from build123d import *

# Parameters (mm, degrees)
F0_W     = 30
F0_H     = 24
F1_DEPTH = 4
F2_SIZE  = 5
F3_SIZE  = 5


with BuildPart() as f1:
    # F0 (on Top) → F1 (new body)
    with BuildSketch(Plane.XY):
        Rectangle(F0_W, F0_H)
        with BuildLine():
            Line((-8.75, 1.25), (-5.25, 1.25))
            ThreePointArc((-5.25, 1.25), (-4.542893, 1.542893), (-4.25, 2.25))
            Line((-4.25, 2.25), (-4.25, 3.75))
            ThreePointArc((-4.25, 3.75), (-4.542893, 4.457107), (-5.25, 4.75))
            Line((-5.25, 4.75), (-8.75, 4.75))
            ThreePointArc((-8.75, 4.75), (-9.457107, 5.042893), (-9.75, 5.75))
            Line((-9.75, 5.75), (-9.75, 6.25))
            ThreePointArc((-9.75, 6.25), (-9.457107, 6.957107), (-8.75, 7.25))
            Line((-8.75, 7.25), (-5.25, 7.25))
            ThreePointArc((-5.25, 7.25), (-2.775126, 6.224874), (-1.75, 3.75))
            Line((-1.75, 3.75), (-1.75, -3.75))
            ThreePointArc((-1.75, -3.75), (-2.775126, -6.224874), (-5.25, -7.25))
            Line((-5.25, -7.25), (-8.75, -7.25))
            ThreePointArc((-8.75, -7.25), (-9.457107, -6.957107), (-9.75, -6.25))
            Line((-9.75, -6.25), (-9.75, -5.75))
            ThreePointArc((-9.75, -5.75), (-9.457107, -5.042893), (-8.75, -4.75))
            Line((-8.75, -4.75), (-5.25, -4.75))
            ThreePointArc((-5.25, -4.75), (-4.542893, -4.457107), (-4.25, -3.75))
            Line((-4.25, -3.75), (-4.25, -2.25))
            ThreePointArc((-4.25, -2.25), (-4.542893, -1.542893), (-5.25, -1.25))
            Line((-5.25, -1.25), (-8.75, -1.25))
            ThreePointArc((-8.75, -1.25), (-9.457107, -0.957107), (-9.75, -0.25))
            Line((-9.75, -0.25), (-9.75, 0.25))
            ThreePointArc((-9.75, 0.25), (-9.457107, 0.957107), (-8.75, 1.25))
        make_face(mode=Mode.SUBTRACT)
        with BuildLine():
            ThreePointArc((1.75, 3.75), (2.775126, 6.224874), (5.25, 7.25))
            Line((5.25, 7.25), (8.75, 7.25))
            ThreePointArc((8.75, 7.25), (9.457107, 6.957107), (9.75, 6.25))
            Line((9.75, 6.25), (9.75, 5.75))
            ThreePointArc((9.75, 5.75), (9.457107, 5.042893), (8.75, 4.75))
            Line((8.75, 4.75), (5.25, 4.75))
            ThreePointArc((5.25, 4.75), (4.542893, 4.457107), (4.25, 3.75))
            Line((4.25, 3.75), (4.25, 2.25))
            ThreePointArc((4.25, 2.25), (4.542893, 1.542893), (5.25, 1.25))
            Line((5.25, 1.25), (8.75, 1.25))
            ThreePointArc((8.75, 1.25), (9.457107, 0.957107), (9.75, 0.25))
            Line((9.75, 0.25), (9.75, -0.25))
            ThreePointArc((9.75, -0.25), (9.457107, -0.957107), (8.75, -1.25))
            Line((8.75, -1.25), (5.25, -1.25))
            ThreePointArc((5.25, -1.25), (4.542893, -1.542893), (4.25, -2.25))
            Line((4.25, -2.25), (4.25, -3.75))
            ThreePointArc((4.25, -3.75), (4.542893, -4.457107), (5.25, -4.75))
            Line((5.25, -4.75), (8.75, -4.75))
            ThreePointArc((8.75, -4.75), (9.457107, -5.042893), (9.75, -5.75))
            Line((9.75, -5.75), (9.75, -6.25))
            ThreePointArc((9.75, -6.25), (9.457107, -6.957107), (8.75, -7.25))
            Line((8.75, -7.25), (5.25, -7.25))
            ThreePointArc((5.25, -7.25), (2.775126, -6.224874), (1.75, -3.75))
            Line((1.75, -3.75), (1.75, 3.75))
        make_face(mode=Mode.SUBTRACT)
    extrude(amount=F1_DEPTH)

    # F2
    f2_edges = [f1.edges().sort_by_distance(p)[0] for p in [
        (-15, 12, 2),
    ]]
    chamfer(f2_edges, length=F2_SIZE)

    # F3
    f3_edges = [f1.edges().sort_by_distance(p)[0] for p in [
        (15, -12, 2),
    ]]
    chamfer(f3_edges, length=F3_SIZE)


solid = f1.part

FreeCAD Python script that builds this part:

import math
import FreeCAD as App
import Part
import Sketcher

V = App.Vector


def edges_at(feature, points):
    """Names of the edges that pass closest to the given points."""
    edges = feature.Shape.Edges
    near = lambda p: min(range(len(edges)), key=lambda i: edges[i].distToShape(Part.Vertex(*p))[0])
    return sorted({f"Edge{near(p) + 1}" for p in points})

doc = App.newDocument("Part")
params = doc.addObject("Spreadsheet::Sheet", "Params")
for row, (alias, value) in enumerate([
    ("sketch1_radius", "0.999999 mm"),
    ("sketch1_radius2", "3.499999 mm"),
    ("sketch1_width", "30 mm"),
    ("sketch1_height", "24 mm"),
    ("sketch1_width2", "3.5 mm"),
    ("pad1_length", "4 mm"),
    ("chamfer_size", "5 mm"),
    ("chamfer2_size", "5 mm"),
], start=1):
    params.set(f"A{row}", alias)
    params.set(f"B{row}", "=" + value)
    params.setAlias(f"B{row}", alias)

body = doc.addObject("PartDesign::Body", "Body")

sketch1 = body.newObject("Sketcher::SketchObject", "Sketch")
sketch1.AttachmentSupport = (doc.getObject("XY_Plane"), [""])
sketch1.MapMode = "FlatFace"
sketch1.addGeometry([
    Part.LineSegment(V(-15, 12, 0), V(-15, -12, 0)),
    Part.LineSegment(V(-15, -12, 0), V(15, -12, 0)),
    Part.LineSegment(V(15, -12, 0), V(15, 12, 0)),
    Part.LineSegment(V(15, 12, 0), V(-15, 12, 0)),
    Part.ArcOfCircle(Part.Circle(V(-8.750001, 0.250001, 0), V(0, 0, 1), 0.999999), math.radians(89.999957), math.radians(180.000043)),
    Part.LineSegment(V(-8.75, 1.25, 0), V(-5.25, 1.25, 0)),
    Part.ArcOfCircle(Part.Circle(V(-5.249999, 2.249999, 0), V(0, 0, 1), 0.999999), math.radians(-90.000043), math.radians(0.000043)),
    Part.LineSegment(V(-4.25, 2.25, 0), V(-4.25, 3.75, 0)),
    Part.ArcOfCircle(Part.Circle(V(-5.249999, 3.750001, 0), V(0, 0, 1), 0.999999), math.radians(-0.000043), math.radians(90.000043)),
    Part.LineSegment(V(-5.25, 4.75, 0), V(-8.75, 4.75, 0)),
    Part.ArcOfCircle(Part.Circle(V(-8.750001, 5.749999, 0), V(0, 0, 1), 0.999999), math.radians(179.999957), math.radians(270.000043)),
    Part.LineSegment(V(-9.75, 5.75, 0), V(-9.75, 6.25, 0)),
    Part.ArcOfCircle(Part.Circle(V(-8.750001, 6.250001, 0), V(0, 0, 1), 0.999999), math.radians(89.999957), math.radians(180.000043)),
    Part.LineSegment(V(-8.75, 7.25, 0), V(-5.25, 7.25, 0)),
    Part.ArcOfCircle(Part.Circle(V(-5.249999, 3.750001, 0), V(0, 0, 1), 3.499999), math.radians(-0.000015), math.radians(90.000015)),
    Part.LineSegment(V(-1.75, 3.75, 0), V(-1.75, -3.75, 0)),
    Part.ArcOfCircle(Part.Circle(V(-5.249999, -3.750001, 0), V(0, 0, 1), 3.499999), math.radians(-90.000015), math.radians(0.000015)),
    Part.LineSegment(V(-5.25, -7.25, 0), V(-8.75, -7.25, 0)),
    Part.ArcOfCircle(Part.Circle(V(-8.750001, -6.250001, 0), V(0, 0, 1), 0.999999), math.radians(179.999957), math.radians(270.000043)),
    Part.LineSegment(V(-9.75, -6.25, 0), V(-9.75, -5.75, 0)),
    Part.ArcOfCircle(Part.Circle(V(-8.750001, -5.749999, 0), V(0, 0, 1), 0.999999), math.radians(89.999957), math.radians(180.000043)),
    Part.LineSegment(V(-8.75, -4.75, 0), V(-5.25, -4.75, 0)),
    Part.ArcOfCircle(Part.Circle(V(-5.249999, -3.750001, 0), V(0, 0, 1), 0.999999), math.radians(-90.000043), math.radians(0.000043)),
    Part.LineSegment(V(-4.25, -3.75, 0), V(-4.25, -2.25, 0)),
    Part.ArcOfCircle(Part.Circle(V(-5.249999, -2.249999, 0), V(0, 0, 1), 0.999999), math.radians(-0.000043), math.radians(90.000043)),
    Part.LineSegment(V(-5.25, -1.25, 0), V(-8.75, -1.25, 0)),
    Part.ArcOfCircle(Part.Circle(V(-8.750001, -0.250001, 0), V(0, 0, 1), 0.999999), math.radians(179.999957), math.radians(270.000043)),
    Part.LineSegment(V(-9.75, -0.25, 0), V(-9.75, 0.25, 0)),
    Part.LineSegment(V(1.75, -3.75, 0), V(1.75, 3.75, 0)),
    Part.ArcOfCircle(Part.Circle(V(5.249999, 3.750001, 0), V(0, 0, 1), 3.499999), math.radians(89.999985), math.radians(180.000015)),
    Part.LineSegment(V(5.25, 7.25, 0), V(8.75, 7.25, 0)),
    Part.ArcOfCircle(Part.Circle(V(8.750001, 6.250001, 0), V(0, 0, 1), 0.999999), math.radians(-0.000043), math.radians(90.000043)),
    Part.LineSegment(V(9.75, 6.25, 0), V(9.75, 5.75, 0)),
    Part.ArcOfCircle(Part.Circle(V(8.750001, 5.749999, 0), V(0, 0, 1), 0.999999), math.radians(-90.000043), math.radians(0.000043)),
    Part.LineSegment(V(8.75, 4.75, 0), V(5.25, 4.75, 0)),
    Part.ArcOfCircle(Part.Circle(V(5.249999, 3.750001, 0), V(0, 0, 1), 0.999999), math.radians(89.999957), math.radians(180.000043)),
    Part.LineSegment(V(4.25, 3.75, 0), V(4.25, 2.25, 0)),
    Part.ArcOfCircle(Part.Circle(V(5.249999, 2.249999, 0), V(0, 0, 1), 0.999999), math.radians(179.999957), math.radians(270.000043)),
    Part.LineSegment(V(5.25, 1.25, 0), V(8.75, 1.25, 0)),
    Part.ArcOfCircle(Part.Circle(V(8.750001, 0.250001, 0), V(0, 0, 1), 0.999999), math.radians(-0.000043), math.radians(90.000043)),
    Part.LineSegment(V(9.75, 0.25, 0), V(9.75, -0.25, 0)),
    Part.ArcOfCircle(Part.Circle(V(8.750001, -0.250001, 0), V(0, 0, 1), 0.999999), math.radians(-90.000043), math.radians(0.000043)),
    Part.LineSegment(V(8.75, -1.25, 0), V(5.25, -1.25, 0)),
    Part.ArcOfCircle(Part.Circle(V(5.249999, -2.249999, 0), V(0, 0, 1), 0.999999), math.radians(89.999957), math.radians(180.000043)),
    Part.LineSegment(V(4.25, -2.25, 0), V(4.25, -3.75, 0)),
    Part.ArcOfCircle(Part.Circle(V(5.249999, -3.750001, 0), V(0, 0, 1), 0.999999), math.radians(179.999957), math.radians(270.000043)),
    Part.LineSegment(V(5.25, -4.75, 0), V(8.75, -4.75, 0)),
    Part.ArcOfCircle(Part.Circle(V(8.750001, -5.749999, 0), V(0, 0, 1), 0.999999), math.radians(-0.000043), math.radians(90.000043)),
    Part.LineSegment(V(9.75, -5.75, 0), V(9.75, -6.25, 0)),
    Part.ArcOfCircle(Part.Circle(V(8.750001, -6.250001, 0), V(0, 0, 1), 0.999999), math.radians(-90.000043), math.radians(0.000043)),
    Part.LineSegment(V(8.75, -7.25, 0), V(5.25, -7.25, 0)),
    Part.ArcOfCircle(Part.Circle(V(5.249999, -3.750001, 0), V(0, 0, 1), 3.499999), math.radians(179.999985), math.radians(270.000015)),
], False)
sketch1.addConstraint([
    Sketcher.Constraint("Coincident", 0, 2, 1, 1),
    Sketcher.Constraint("Coincident", 1, 2, 2, 1),
    Sketcher.Constraint("Coincident", 2, 2, 3, 1),
    Sketcher.Constraint("Coincident", 3, 2, 0, 1),
    Sketcher.Constraint("Tangent", 4, 1, 5, 1),
    Sketcher.Constraint("Tangent", 5, 2, 6, 1),
    Sketcher.Constraint("Tangent", 6, 2, 7, 1),
    Sketcher.Constraint("Tangent", 7, 2, 8, 1),
    Sketcher.Constraint("Tangent", 8, 2, 9, 1),
    Sketcher.Constraint("Tangent", 9, 2, 10, 2),
    Sketcher.Constraint("Tangent", 10, 1, 11, 1),
    Sketcher.Constraint("Tangent", 11, 2, 12, 2),
    Sketcher.Constraint("Tangent", 12, 1, 13, 1),
    Sketcher.Constraint("Tangent", 13, 2, 14, 2),
    Sketcher.Constraint("Tangent", 14, 1, 15, 1),
    Sketcher.Constraint("Tangent", 15, 2, 16, 2),
    Sketcher.Constraint("Tangent", 16, 1, 17, 1),
    Sketcher.Constraint("Tangent", 17, 2, 18, 2),
    Sketcher.Constraint("Tangent", 18, 1, 19, 1),
    Sketcher.Constraint("Tangent", 19, 2, 20, 2),
    Sketcher.Constraint("Tangent", 20, 1, 21, 1),
    Sketcher.Constraint("Tangent", 21, 2, 22, 1),
    Sketcher.Constraint("Tangent", 22, 2, 23, 1),
    Sketcher.Constraint("Tangent", 23, 2, 24, 1),
    Sketcher.Constraint("Tangent", 24, 2, 25, 1),
    Sketcher.Constraint("Tangent", 25, 2, 26, 2),
    Sketcher.Constraint("Tangent", 26, 1, 27, 1),
    Sketcher.Constraint("Tangent", 27, 2, 4, 2),
    Sketcher.Constraint("Tangent", 28, 2, 29, 2),
    Sketcher.Constraint("Tangent", 29, 1, 30, 1),
    Sketcher.Constraint("Tangent", 30, 2, 31, 2),
    Sketcher.Constraint("Tangent", 31, 1, 32, 1),
    Sketcher.Constraint("Tangent", 32, 2, 33, 2),
    Sketcher.Constraint("Tangent", 33, 1, 34, 1),
    Sketcher.Constraint("Tangent", 34, 2, 35, 1),
    Sketcher.Constraint("Tangent", 35, 2, 36, 1),
    Sketcher.Constraint("Tangent", 36, 2, 37, 1),
    Sketcher.Constraint("Tangent", 37, 2, 38, 1),
    Sketcher.Constraint("Tangent", 38, 2, 39, 2),
    Sketcher.Constraint("Tangent", 39, 1, 40, 1),
    Sketcher.Constraint("Tangent", 40, 2, 41, 2),
    Sketcher.Constraint("Tangent", 41, 1, 42, 1),
    Sketcher.Constraint("Tangent", 42, 2, 43, 1),
    Sketcher.Constraint("Tangent", 43, 2, 44, 1),
    Sketcher.Constraint("Tangent", 44, 2, 45, 1),
    Sketcher.Constraint("Tangent", 45, 2, 46, 1),
    Sketcher.Constraint("Tangent", 46, 2, 47, 2),
    Sketcher.Constraint("Tangent", 47, 1, 48, 1),
    Sketcher.Constraint("Tangent", 48, 2, 49, 2),
    Sketcher.Constraint("Tangent", 49, 1, 50, 1),
    Sketcher.Constraint("Tangent", 50, 2, 51, 2),
    Sketcher.Constraint("Tangent", 51, 1, 28, 1),
    Sketcher.Constraint("Vertical", 0),
    Sketcher.Constraint("Horizontal", 1),
    Sketcher.Constraint("Vertical", 2),
    Sketcher.Constraint("Horizontal", 3),
    Sketcher.Constraint("Horizontal", 5),
    Sketcher.Constraint("Vertical", 7),
    Sketcher.Constraint("Horizontal", 9),
    Sketcher.Constraint("Vertical", 11),
    Sketcher.Constraint("Horizontal", 13),
    Sketcher.Constraint("Vertical", 15),
    Sketcher.Constraint("Horizontal", 17),
    Sketcher.Constraint("Vertical", 19),
    Sketcher.Constraint("Horizontal", 21),
    Sketcher.Constraint("Vertical", 23),
    Sketcher.Constraint("Horizontal", 25),
    Sketcher.Constraint("Vertical", 27),
    Sketcher.Constraint("Vertical", 28),
    Sketcher.Constraint("Horizontal", 30),
    Sketcher.Constraint("Vertical", 32),
    Sketcher.Constraint("Horizontal", 34),
    Sketcher.Constraint("Vertical", 36),
    Sketcher.Constraint("Horizontal", 38),
    Sketcher.Constraint("Vertical", 40),
    Sketcher.Constraint("Horizontal", 42),
    Sketcher.Constraint("Vertical", 44),
    Sketcher.Constraint("Horizontal", 46),
    Sketcher.Constraint("Vertical", 48),
    Sketcher.Constraint("Horizontal", 50),
    Sketcher.Constraint("Coincident", 14, 3, 8, 3),
    Sketcher.Constraint("Coincident", 22, 3, 16, 3),
    Sketcher.Constraint("Coincident", 35, 3, 29, 3),
    Sketcher.Constraint("Coincident", 51, 3, 45, 3),
    Sketcher.Constraint("Equal", 4, 6),
    Sketcher.Constraint("Equal", 6, 8),
    Sketcher.Constraint("Equal", 8, 10),
    Sketcher.Constraint("Equal", 10, 12),
    Sketcher.Constraint("Equal", 14, 16),
    Sketcher.Constraint("Equal", 12, 18),
    Sketcher.Constraint("Equal", 18, 20),
    Sketcher.Constraint("Equal", 20, 22),
    Sketcher.Constraint("Equal", 22, 24),
    Sketcher.Constraint("Equal", 24, 26),
    Sketcher.Constraint("Equal", 16, 29),
    Sketcher.Constraint("Equal", 26, 31),
    Sketcher.Constraint("Equal", 31, 33),
    Sketcher.Constraint("Equal", 33, 35),
    Sketcher.Constraint("Equal", 35, 37),
    Sketcher.Constraint("Equal", 37, 39),
    Sketcher.Constraint("Equal", 39, 41),
    Sketcher.Constraint("Equal", 41, 43),
    Sketcher.Constraint("Equal", 43, 45),
    Sketcher.Constraint("Equal", 45, 47),
    Sketcher.Constraint("Equal", 47, 49),
    Sketcher.Constraint("Equal", 29, 51),
    Sketcher.Constraint("Symmetric", 16, 3, 29, 3, -1, 1),
    Sketcher.Constraint("Symmetric", 26, 3, 39, 3, -1, 1),
    Sketcher.Constraint("Symmetric", 10, 3, 47, 3, -1, 1),
    Sketcher.Constraint("Symmetric", 0, 2, 2, 2, -1, 1),
    Sketcher.Constraint("Symmetric", 12, 3, 31, 3, -2),
    Sketcher.Constraint("Horizontal", 6, 3, 37, 3),
    Sketcher.Constraint("Horizontal", 26, 3, 41, 3),
    Sketcher.Constraint("Vertical", 4, 3, 10, 3),
    Sketcher.Constraint("Vertical", 12, 3, 18, 3),
    Sketcher.Constraint("Equal", 19, 27),
    Sketcher.Constraint("Radius", 4, 0.999999),
    Sketcher.Constraint("Radius", 14, 3.499999),
    Sketcher.Constraint("DistanceX", 1, 1, 1, 2, 30.0),
    Sketcher.Constraint("DistanceY", 0, 2, 0, 1, 24.0),
    Sketcher.Constraint("DistanceX", 5, 1, 5, 2, 3.5),
    Sketcher.Constraint("DistanceY", 7, 1, 7, 2, 1.5),
    Sketcher.Constraint("DistanceX", 4, 3, -1, 1, 8.750001),
])
sketch1.setExpression("Constraints[116]", "Params.sketch1_radius")
sketch1.setExpression("Constraints[117]", "Params.sketch1_radius2")
sketch1.setExpression("Constraints[118]", "Params.sketch1_width")
sketch1.setExpression("Constraints[119]", "Params.sketch1_height")
sketch1.setExpression("Constraints[120]", "Params.sketch1_width2")
pad1 = body.newObject("PartDesign::Pad", "Pad")
pad1.Profile = sketch1
pad1.setExpression("Length", "Params.pad1_length")
doc.recompute()

chamfer = body.newObject("PartDesign::Chamfer", "Chamfer")
chamfer.Base = (pad1, edges_at(pad1, [(-15, 12, 2)]))
chamfer.setExpression("Size", "Params.chamfer_size")
doc.recompute()

chamfer2 = body.newObject("PartDesign::Chamfer", "Chamfer001")
chamfer2.Base = (chamfer, edges_at(chamfer, [(15, -12, 2)]))
chamfer2.setExpression("Size", "Params.chamfer2_size")

doc.recompute()
